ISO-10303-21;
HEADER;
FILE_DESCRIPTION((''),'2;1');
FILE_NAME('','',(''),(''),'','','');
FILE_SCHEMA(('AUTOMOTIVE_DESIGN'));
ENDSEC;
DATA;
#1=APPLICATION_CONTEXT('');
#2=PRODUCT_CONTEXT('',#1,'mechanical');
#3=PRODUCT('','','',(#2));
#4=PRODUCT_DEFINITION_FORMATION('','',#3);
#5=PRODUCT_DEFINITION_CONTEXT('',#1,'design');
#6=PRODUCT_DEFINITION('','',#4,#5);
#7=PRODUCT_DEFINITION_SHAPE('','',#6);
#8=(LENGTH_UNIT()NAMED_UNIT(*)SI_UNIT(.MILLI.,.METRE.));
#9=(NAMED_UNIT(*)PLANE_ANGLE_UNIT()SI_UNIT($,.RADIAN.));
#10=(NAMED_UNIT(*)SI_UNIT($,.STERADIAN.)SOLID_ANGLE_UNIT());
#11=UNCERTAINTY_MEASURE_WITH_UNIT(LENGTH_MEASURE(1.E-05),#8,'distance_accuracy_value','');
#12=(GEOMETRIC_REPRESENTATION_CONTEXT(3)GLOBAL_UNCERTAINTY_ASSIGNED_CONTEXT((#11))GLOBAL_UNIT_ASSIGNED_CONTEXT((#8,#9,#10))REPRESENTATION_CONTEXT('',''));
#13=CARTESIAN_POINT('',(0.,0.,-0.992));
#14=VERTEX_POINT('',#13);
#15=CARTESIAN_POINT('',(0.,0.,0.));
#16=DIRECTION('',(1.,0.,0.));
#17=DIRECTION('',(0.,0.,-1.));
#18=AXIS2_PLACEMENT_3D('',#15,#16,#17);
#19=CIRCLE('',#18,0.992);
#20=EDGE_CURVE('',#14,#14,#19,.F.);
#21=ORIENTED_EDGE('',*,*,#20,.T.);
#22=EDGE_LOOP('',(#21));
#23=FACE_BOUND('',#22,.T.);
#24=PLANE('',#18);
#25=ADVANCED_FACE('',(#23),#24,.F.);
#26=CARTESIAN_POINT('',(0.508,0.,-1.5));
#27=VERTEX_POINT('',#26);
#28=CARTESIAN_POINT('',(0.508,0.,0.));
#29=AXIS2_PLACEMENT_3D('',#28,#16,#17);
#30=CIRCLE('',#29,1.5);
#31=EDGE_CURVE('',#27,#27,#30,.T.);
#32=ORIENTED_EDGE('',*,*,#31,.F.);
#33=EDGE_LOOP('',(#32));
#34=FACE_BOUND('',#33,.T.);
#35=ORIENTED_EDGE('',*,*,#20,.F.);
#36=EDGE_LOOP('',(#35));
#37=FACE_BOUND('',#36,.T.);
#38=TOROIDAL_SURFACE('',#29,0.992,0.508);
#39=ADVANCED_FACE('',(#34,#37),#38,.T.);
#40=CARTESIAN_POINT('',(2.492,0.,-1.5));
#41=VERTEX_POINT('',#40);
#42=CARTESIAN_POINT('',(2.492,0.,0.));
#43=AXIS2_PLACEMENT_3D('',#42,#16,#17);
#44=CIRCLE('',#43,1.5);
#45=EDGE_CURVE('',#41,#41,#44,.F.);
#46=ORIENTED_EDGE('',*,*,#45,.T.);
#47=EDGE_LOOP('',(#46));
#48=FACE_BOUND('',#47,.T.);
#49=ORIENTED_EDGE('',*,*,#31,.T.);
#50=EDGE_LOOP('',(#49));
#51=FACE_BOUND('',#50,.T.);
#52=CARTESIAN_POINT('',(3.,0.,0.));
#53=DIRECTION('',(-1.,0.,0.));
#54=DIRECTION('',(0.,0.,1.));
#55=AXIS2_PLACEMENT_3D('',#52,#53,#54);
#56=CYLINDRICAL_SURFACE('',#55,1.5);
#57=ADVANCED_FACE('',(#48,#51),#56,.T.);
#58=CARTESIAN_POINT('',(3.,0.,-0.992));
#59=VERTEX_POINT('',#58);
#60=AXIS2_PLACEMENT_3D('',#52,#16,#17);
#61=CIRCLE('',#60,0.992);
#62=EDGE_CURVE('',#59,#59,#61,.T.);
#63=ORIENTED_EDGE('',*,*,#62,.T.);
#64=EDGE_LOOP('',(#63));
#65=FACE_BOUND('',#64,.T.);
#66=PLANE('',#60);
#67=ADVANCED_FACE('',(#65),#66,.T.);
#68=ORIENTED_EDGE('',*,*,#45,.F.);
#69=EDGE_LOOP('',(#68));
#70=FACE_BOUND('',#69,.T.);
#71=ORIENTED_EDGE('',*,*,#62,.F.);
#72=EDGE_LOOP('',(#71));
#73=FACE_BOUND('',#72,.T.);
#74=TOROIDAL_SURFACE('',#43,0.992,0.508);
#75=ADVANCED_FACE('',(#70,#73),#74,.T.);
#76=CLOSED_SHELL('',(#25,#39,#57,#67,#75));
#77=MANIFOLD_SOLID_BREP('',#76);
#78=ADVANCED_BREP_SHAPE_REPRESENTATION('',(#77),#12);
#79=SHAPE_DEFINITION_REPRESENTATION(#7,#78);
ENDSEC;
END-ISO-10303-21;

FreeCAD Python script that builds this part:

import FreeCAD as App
import Part
import Sketcher
Q = App.Units.Quantity


def edges_at(feature, points):
    """Names of the edges that pass closest to the given points."""
    edges = feature.Shape.Edges
    near = lambda p: min(range(len(edges)), key=lambda i: edges[i].distToShape(Part.Vertex(*p))[0])
    return sorted({f"Edge{near(p) + 1}" for p in points})

doc = App.newDocument("Part")
params = doc.addObject("Spreadsheet::Sheet", "Params")
for row, (alias, value) in enumerate([
    ("sketch1_diameter", "3 mm"),
    ("pad1_length", "3 mm"),
    ("fillet_radius", "0.508 mm"),
], start=1):
    params.set(f"A{row}", alias)
    params.set(f"B{row}", "=" + value)
    params.setAlias(f"B{row}", alias)

body = doc.addObject("PartDesign::Body", "Body")

# Sketch on YZ plane
sketch1 = body.newObject("Sketcher::SketchObject", "Sketch")
sketch1.AttachmentSupport = (doc.getObject("YZ_Plane"), [""])
sketch1.MapMode = "FlatFace"
sketch1.addGeometry(Part.Circle(App.Vector(0, 0, 0), App.Vector(0, 0, 1), 1.5), False)
sketch1.addConstraint(Sketcher.Constraint("Coincident", 0, 3, -1, 1))
sketch1.addConstraint(Sketcher.Constraint("Diameter", 0, Q("3 mm")))
sketch1.setExpression("Constraints[1]", "Params.sketch1_diameter")
pad1 = body.newObject("PartDesign::Pad", "Pad")
pad1.Profile = sketch1
pad1.setExpression("Length", "Params.pad1_length")
doc.recompute()

fillet = body.newObject("PartDesign::Fillet", "Fillet")
fillet.Base = (pad1, edges_at(pad1, [(0, 0, 1.5), (3, 0, 1.5)]))
fillet.setExpression("Radius", "Params.fillet_radius")

doc.recompute()
